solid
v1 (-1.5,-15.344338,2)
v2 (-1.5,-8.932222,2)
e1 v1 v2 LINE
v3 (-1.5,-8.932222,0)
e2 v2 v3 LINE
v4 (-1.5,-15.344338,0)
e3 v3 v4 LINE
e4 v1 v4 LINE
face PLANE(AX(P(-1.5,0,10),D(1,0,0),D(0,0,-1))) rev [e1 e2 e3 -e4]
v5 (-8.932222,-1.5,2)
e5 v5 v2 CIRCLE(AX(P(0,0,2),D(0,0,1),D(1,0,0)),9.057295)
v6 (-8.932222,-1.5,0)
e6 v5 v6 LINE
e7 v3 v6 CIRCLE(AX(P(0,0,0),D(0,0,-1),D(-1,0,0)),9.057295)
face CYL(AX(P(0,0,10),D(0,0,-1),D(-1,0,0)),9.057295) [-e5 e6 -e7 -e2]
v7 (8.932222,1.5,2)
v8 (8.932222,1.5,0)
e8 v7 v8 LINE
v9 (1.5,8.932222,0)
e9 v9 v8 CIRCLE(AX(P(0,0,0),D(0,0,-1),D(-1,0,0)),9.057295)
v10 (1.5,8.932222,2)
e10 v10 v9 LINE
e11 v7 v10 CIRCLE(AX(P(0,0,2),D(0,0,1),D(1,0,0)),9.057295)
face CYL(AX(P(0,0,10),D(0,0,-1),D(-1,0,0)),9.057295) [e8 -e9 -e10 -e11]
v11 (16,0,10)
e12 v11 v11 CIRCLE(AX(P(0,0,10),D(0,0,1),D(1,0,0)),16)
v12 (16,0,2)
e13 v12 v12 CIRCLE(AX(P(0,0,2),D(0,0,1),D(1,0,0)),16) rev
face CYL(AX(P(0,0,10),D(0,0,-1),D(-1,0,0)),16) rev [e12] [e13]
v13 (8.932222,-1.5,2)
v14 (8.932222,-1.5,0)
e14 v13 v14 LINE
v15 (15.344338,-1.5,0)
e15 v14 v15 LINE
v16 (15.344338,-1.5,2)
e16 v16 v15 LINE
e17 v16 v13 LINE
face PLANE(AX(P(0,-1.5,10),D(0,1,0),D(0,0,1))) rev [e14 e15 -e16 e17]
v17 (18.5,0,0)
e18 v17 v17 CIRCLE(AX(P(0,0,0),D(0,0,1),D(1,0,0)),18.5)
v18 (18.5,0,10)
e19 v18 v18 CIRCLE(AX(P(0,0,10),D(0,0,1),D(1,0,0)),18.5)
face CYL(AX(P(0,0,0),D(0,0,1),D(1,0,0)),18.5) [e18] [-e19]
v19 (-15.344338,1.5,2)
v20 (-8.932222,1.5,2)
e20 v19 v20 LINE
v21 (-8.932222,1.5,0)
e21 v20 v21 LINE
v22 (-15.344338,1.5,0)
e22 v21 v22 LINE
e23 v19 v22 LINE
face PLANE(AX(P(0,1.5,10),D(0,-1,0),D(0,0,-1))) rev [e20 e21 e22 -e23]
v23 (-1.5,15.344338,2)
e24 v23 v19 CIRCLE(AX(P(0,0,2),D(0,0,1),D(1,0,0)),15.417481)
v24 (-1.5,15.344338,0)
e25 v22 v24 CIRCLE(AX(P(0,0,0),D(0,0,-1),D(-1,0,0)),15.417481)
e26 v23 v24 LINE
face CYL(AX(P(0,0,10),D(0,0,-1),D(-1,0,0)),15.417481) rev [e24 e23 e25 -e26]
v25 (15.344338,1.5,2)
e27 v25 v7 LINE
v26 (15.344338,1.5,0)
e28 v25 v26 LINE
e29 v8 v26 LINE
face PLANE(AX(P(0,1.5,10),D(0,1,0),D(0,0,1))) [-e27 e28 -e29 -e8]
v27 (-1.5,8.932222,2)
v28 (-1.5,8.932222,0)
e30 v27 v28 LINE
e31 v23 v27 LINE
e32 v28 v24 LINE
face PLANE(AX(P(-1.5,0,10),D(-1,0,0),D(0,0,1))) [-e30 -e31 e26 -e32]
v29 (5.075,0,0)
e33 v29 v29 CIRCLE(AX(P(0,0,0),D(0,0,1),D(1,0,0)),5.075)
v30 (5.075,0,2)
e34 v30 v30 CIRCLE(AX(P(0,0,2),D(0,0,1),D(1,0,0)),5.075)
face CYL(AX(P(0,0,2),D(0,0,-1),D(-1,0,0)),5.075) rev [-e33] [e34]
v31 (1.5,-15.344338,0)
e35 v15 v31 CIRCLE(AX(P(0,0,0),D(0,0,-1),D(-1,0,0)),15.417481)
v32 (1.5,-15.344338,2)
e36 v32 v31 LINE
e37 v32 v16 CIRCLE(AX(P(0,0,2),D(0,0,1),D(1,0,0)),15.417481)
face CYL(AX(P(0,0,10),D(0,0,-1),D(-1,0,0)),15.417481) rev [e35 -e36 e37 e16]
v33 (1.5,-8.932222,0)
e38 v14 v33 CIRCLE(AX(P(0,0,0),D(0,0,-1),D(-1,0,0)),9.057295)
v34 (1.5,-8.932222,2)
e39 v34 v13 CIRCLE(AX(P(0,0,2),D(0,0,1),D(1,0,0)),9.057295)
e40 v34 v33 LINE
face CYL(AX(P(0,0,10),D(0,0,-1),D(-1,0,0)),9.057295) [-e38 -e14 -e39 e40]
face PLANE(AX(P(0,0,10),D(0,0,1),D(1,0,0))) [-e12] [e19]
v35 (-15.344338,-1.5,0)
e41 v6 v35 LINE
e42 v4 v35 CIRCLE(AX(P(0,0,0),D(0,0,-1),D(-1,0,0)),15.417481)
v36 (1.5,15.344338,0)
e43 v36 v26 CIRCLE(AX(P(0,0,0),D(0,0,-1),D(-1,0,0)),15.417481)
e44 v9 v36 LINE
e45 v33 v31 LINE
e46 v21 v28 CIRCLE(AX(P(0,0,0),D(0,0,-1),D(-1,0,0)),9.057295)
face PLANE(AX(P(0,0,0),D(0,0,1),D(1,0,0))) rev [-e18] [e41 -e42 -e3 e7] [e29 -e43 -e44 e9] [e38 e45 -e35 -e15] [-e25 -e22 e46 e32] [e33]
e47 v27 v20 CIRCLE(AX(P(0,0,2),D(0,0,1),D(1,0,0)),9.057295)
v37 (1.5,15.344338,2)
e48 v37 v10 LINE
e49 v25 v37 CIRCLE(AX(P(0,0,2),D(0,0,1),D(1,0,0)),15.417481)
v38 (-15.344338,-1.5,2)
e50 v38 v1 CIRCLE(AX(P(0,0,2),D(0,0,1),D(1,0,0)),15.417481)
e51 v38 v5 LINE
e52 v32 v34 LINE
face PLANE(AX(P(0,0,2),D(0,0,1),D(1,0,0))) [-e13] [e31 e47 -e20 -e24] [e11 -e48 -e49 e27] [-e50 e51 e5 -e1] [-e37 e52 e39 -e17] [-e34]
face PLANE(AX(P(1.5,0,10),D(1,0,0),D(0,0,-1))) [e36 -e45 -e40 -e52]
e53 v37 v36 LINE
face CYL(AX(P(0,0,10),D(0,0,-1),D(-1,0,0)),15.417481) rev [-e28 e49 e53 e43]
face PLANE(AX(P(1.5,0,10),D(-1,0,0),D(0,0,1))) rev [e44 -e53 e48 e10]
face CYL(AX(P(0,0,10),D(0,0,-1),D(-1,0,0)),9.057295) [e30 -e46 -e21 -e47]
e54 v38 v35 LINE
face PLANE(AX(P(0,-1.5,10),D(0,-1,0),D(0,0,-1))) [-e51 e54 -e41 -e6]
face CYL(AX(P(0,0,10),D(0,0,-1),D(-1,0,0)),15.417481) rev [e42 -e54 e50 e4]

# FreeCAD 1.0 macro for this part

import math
import FreeCAD as App
import Part
import Sketcher
Q = App.Units.Quantity

doc = App.newDocument("Part")
params = doc.addObject("Spreadsheet::Sheet", "Params")
for row, (alias, value) in enumerate([
    ("sketch1_diameter", "32 mm"),
    ("sketch1_diameter2", "10.15 mm"),
    ("pad1_length", "2 mm"),
    ("sketch2_diameter", "36 mm"),
    ("sketch2_diameter2", "32 mm"),
    ("pad2_length", "10 mm"),
    ("pocket1_length", "10 mm"),
    ("sketch4_diameter", "37 mm"),
    ("sketch4_diameter2", "36 mm"),
    ("pad3_length", "10 mm"),
], start=1):
    params.set(f"A{row}", alias)
    params.set(f"B{row}", "=" + value)
    params.setAlias(f"B{row}", alias)

body = doc.addObject("PartDesign::Body", "Body")

sketch1 = doc.addObject("Sketcher::SketchObject", "Sketch")
body.addObject(sketch1)
sketch1.AttachmentSupport = (doc.XY_Plane, [""])
sketch1.MapMode = "FlatFace"
sketch1.addGeometry([
    Part.Circle(App.Vector(0, 0, 0), App.Vector(0, 0, 1), 16),
    Part.Circle(App.Vector(0, 0, 0), App.Vector(0, 0, 1), 5.075),
], False)
sketch1.addConstraint([
    Sketcher.Constraint("Coincident", 0, 3, -1, 1),
    Sketcher.Constraint("Coincident", 1, 3, -1, 1),
    Sketcher.Constraint("Diameter", 0, Q("32 mm")),
    Sketcher.Constraint("Diameter", 1, Q("10.15 mm")),
])
sketch1.setExpression("Constraints[2]", "Params.sketch1_diameter")
sketch1.setExpression("Constraints[3]", "Params.sketch1_diameter2")
pad1 = doc.addObject("PartDesign::Pad", "Pad")
body.addObject(pad1)
pad1.Profile = sketch1
pad1.setExpression("Length", "Params.pad1_length")

sketch2 = doc.addObject("Sketcher::SketchObject", "Sketch001")
body.addObject(sketch2)
sketch2.AttachmentSupport = (doc.XY_Plane, [""])
sketch2.MapMode = "FlatFace"
sketch2.addGeometry([
    Part.Circle(App.Vector(0, 0, 0), App.Vector(0, 0, 1), 18),
    Part.Circle(App.Vector(0, 0, 0), App.Vector(0, 0, 1), 16),
], False)
sketch2.addConstraint([
    Sketcher.Constraint("Coincident", 0, 3, -1, 1),
    Sketcher.Constraint("Coincident", 1, 3, -1, 1),
    Sketcher.Constraint("Diameter", 0, Q("36 mm")),
    Sketcher.Constraint("Diameter", 1, Q("32 mm")),
])
sketch2.setExpression("Constraints[2]", "Params.sketch2_diameter")
sketch2.setExpression("Constraints[3]", "Params.sketch2_diameter2")
pad2 = doc.addObject("PartDesign::Pad", "Pad001")
body.addObject(pad2)
pad2.Profile = sketch2
pad2.setExpression("Length", "Params.pad2_length")

sketch3 = doc.addObject("Sketcher::SketchObject", "Sketch002")
body.addObject(sketch3)
sketch3.AttachmentSupport = (doc.XY_Plane, [""])
sketch3.MapMode = "FlatFace"
sketch3.addGeometry([
    Part.ArcOfCircle(Part.Circle(App.Vector(0, 0, 0), App.Vector(0, 0, 1), 9.057295), math.radians(-80.467191), math.radians(-9.532809)),
    Part.LineSegment(App.Vector(8.932222, -1.5, 0), App.Vector(15.344338, -1.5, 0)),
    Part.ArcOfCircle(Part.Circle(App.Vector(0, 0, 0), App.Vector(0, 0, 1), 15.417481), math.radians(-84.416738), math.radians(-5.583262)),
    Part.LineSegment(App.Vector(1.5, -15.344338, 0), App.Vector(1.5, -8.932222, 0)),
    Part.ArcOfCircle(Part.Circle(App.Vector(0, 0, 0), App.Vector(0, 0, 1), 9.057295), math.radians(-170.467191), math.radians(-99.532809)),
    Part.LineSegment(App.Vector(-1.5, -8.932222, 0), App.Vector(-1.5, -15.344338, 0)),
    Part.ArcOfCircle(Part.Circle(App.Vector(0, 0, 0), App.Vector(0, 0, 1), 15.417481), math.radians(-174.416738), math.radians(-95.583262)),
    Part.LineSegment(App.Vector(-15.344338, -1.5, 0), App.Vector(-8.932222, -1.5, 0)),
    Part.ArcOfCircle(Part.Circle(App.Vector(0, 0, 0), App.Vector(0, 0, 1), 9.057295), math.radians(99.532809), math.radians(170.467191)),
    Part.LineSegment(App.Vector(-8.932222, 1.5, 0), App.Vector(-15.344338, 1.5, 0)),
    Part.ArcOfCircle(Part.Circle(App.Vector(0, 0, 0), App.Vector(0, 0, 1), 15.417481), math.radians(95.583262), math.radians(174.416738)),
    Part.LineSegment(App.Vector(-1.5, 15.344338, 0), App.Vector(-1.5, 8.932222, 0)),
    Part.ArcOfCircle(Part.Circle(App.Vector(0, 0, 0), App.Vector(0, 0, 1), 9.057295), math.radians(9.532809), math.radians(80.467191)),
    Part.LineSegment(App.Vector(1.5, 8.932222, 0), App.Vector(1.5, 15.344338, 0)),
    Part.ArcOfCircle(Part.Circle(App.Vector(0, 0, 0), App.Vector(0, 0, 1), 15.417481), math.radians(5.583262), math.radians(84.416738)),
    Part.LineSegment(App.Vector(15.344338, 1.5, 0), App.Vector(8.932222, 1.5, 0)),
], False)
sketch3.addConstraint([
    Sketcher.Constraint("Coincident", 0, 2, 1, 1),
    Sketcher.Constraint("Coincident", 1, 2, 2, 2),
    Sketcher.Constraint("Coincident", 2, 1, 3, 1),
    Sketcher.Constraint("Coincident", 3, 2, 0, 1),
    Sketcher.Constraint("Coincident", 4, 2, 5, 1),
    Sketcher.Constraint("Coincident", 5, 2, 6, 2),
    Sketcher.Constraint("Coincident", 6, 1, 7, 1),
    Sketcher.Constraint("Coincident", 7, 2, 4, 1),
    Sketcher.Constraint("Coincident", 8, 2, 9, 1),
    Sketcher.Constraint("Coincident", 9, 2, 10, 2),
    Sketcher.Constraint("Coincident", 10, 1, 11, 1),
    Sketcher.Constraint("Coincident", 11, 2, 8, 1),
    Sketcher.Constraint("Coincident", 12, 2, 13, 1),
    Sketcher.Constraint("Coincident", 13, 2, 14, 2),
    Sketcher.Constraint("Coincident", 14, 1, 15, 1),
    Sketcher.Constraint("Coincident", 15, 2, 12, 1),
    Sketcher.Constraint("Horizontal", 1),
    Sketcher.Constraint("Vertical", 3),
    Sketcher.Constraint("Vertical", 5),
    Sketcher.Constraint("Horizontal", 7),
    Sketcher.Constraint("Horizontal", 9),
    Sketcher.Constraint("Vertical", 11),
    Sketcher.Constraint("Vertical", 13),
    Sketcher.Constraint("Horizontal", 15),
    Sketcher.Constraint("Coincident", 0, 3, -1, 1),
    Sketcher.Constraint("Coincident", 2, 3, -1, 1),
    Sketcher.Constraint("Coincident", 4, 3, -1, 1),
    Sketcher.Constraint("Coincident", 6, 3, -1, 1),
    Sketcher.Constraint("Coincident", 8, 3, -1, 1),
    Sketcher.Constraint("Coincident", 10, 3, -1, 1),
    Sketcher.Constraint("Coincident", 12, 3, -1, 1),
    Sketcher.Constraint("Coincident", 14, 3, -1, 1),
    Sketcher.Constraint("Equal", 0, 4),
    Sketcher.Constraint("Equal", 2, 6),
    Sketcher.Constraint("Equal", 4, 8),
    Sketcher.Constraint("Equal", 6, 10),
    Sketcher.Constraint("Equal", 8, 12),
    Sketcher.Constraint("Equal", 10, 14),
    Sketcher.Constraint("Horizontal", 3, 2, 4, 2),
    Sketcher.Constraint("Horizontal", 1, 2, 6, 1),
    Sketcher.Constraint("Horizontal", 11, 2, 12, 2),
    Sketcher.Constraint("Horizontal", 9, 2, 14, 1),
    Sketcher.Constraint("Vertical", 7, 2, 8, 2),
    Sketcher.Constraint("Vertical", 5, 2, 10, 1),
    Sketcher.Constraint("Equal", 15, 3),
    Sketcher.Constraint("DistanceX", 4, 2, 3, 2, Q("3 mm")),
    Sketcher.Constraint("Radius", 2, Q("15.417481 mm")),
    Sketcher.Constraint("Radius", 0, Q("9.057295 mm")),
])
pocket1 = doc.addObject("PartDesign::Pocket", "Pocket")
body.addObject(pocket1)
pocket1.Profile = sketch3
pocket1.setExpression("Length", "Params.pocket1_length")
pocket1.Reversed = True

sketch4 = doc.addObject("Sketcher::SketchObject", "Sketch003")
body.addObject(sketch4)
sketch4.AttachmentSupport = (doc.XY_Plane, [""])
sketch4.MapMode = "FlatFace"
sketch4.addGeometry([
    Part.Circle(App.Vector(0, 0, 0), App.Vector(0, 0, 1), 18.5),
    Part.Circle(App.Vector(0, 0, 0), App.Vector(0, 0, 1), 18),
], False)
sketch4.addConstraint([
    Sketcher.Constraint("Coincident", 0, 3, -1, 1),
    Sketcher.Constraint("Coincident", 1, 3, -1, 1),
    Sketcher.Constraint("Diameter", 0, Q("37 mm")),
    Sketcher.Constraint("Diameter", 1, Q("36 mm")),
])
sketch4.setExpression("Constraints[2]", "Params.sketch4_diameter")
sketch4.setExpression("Constraints[3]", "Params.sketch4_diameter2")
pad3 = doc.addObject("PartDesign::Pad", "Pad002")
body.addObject(pad3)
pad3.Profile = sketch4
pad3.setExpression("Length", "Params.pad3_length")

doc.recompute()
